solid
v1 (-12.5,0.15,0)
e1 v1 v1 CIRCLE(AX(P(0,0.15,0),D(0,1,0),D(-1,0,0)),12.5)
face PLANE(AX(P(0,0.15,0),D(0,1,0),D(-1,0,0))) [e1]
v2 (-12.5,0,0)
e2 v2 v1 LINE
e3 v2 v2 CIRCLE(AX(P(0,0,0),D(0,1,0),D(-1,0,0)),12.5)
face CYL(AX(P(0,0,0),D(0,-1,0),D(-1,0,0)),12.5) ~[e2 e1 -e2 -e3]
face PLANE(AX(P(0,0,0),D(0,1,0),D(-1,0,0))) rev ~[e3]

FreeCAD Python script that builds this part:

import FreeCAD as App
import Part
import Sketcher

doc = App.newDocument("Part")
body = doc.addObject("PartDesign::Body", "Body")

sketch1 = doc.addObject("Sketcher::SketchObject", "Sketch")
body.addObject(sketch1)
sketch1.AttachmentSupport = (doc.XZ_Plane, [""])
sketch1.MapMode = "FlatFace"
sketch1.addGeometry(Part.Circle(App.Vector(0, 0, 0), App.Vector(0, 0, 1), 12), False)
sketch1.addConstraint([
    Sketcher.Constraint("Coincident", 0, 3, -1, 1),
    Sketcher.Constraint("Diameter", 0, 25.0),
])
pad1 = doc.addObject("PartDesign::Pad", "Pad")
body.addObject(pad1)
pad1.Profile = sketch1
pad1.Length = 0.15
pad1.Reversed = True

doc.recompute()
